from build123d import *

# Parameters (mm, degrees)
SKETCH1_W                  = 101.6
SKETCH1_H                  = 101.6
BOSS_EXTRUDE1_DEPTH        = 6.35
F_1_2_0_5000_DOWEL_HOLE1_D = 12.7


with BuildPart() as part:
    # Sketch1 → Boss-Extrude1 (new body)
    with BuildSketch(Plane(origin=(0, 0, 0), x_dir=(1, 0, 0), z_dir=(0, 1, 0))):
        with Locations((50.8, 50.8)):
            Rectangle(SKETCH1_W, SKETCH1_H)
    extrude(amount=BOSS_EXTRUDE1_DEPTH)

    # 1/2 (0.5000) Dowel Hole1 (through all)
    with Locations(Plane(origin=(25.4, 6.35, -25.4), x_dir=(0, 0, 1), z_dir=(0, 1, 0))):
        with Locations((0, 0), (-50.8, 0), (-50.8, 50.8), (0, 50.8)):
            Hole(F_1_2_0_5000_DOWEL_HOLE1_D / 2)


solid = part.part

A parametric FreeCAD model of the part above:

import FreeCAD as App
import Part
import Sketcher
Q = App.Units.Quantity

doc = App.newDocument("Part")
params = doc.addObject("Spreadsheet::Sheet", "Params")
for row, (alias, value) in enumerate([
    ("sketch1_width", "4 in"),
    ("pad1_length", "0.25 in"),
    ("sketch2_diameter", "0.5 in"),
    ("hole_diameter", "0.5 in"),
], start=1):
    params.set(f"A{row}", alias)
    params.set(f"B{row}", "=" + value)
    params.setAlias(f"B{row}", alias)

body = doc.addObject("PartDesign::Body", "Body")

sketch1 = body.newObject("Sketcher::SketchObject", "Sketch")
sketch1.AttachmentSupport = (doc.getObject("XZ_Plane"), [""])
sketch1.MapMode = "FlatFace"
sketch1.addGeometry([
    Part.LineSegment(App.Vector(0, -102, 0), App.Vector(0, 0, 0)),
    Part.LineSegment(App.Vector(0, 0, 0), App.Vector(102, 0, 0)),
    Part.LineSegment(App.Vector(102, 0, 0), App.Vector(102, -102, 0)),
    Part.LineSegment(App.Vector(102, -102, 0), App.Vector(0, -102, 0)),
], False)
sketch1.addConstraint([
    Sketcher.Constraint("Coincident", 0, 2, 1, 1),
    Sketcher.Constraint("Coincident", 1, 2, 2, 1),
    Sketcher.Constraint("Coincident", 2, 2, 3, 1),
    Sketcher.Constraint("Coincident", 3, 2, 0, 1),
    Sketcher.Constraint("Vertical", 0),
    Sketcher.Constraint("Horizontal", 1),
    Sketcher.Constraint("Vertical", 2),
    Sketcher.Constraint("Horizontal", 3),
    Sketcher.Constraint("Coincident", 0, 2, -1, 1),
    Sketcher.Constraint("Equal", 3, 0),
    Sketcher.Constraint("DistanceX", 1, 1, 1, 2, Q("4 in")),
])
sketch1.setExpression("Constraints[10]", "Params.sketch1_width")
pad1 = body.newObject("PartDesign::Pad", "Pad")
pad1.Profile = sketch1
pad1.setExpression("Length", "Params.pad1_length")
pad1.Reversed = True

sketch2 = body.newObject("Sketcher::SketchObject", "Sketch001")
sketch2.AttachmentSupport = (doc.getObject("XZ_Plane"), [""])
sketch2.MapMode = "FlatFace"
sketch2.AttachmentOffset = App.Placement(App.Vector(0, 0, -0.25 * 25.4), App.Rotation())
sketch2.addGeometry([
    Part.Circle(App.Vector(25, -25, 0), App.Vector(0, 0, 1), 6),
    Part.Circle(App.Vector(25, -76, 0), App.Vector(0, 0, 1), 6),
    Part.Circle(App.Vector(76, -76, 0), App.Vector(0, 0, 1), 6),
    Part.Circle(App.Vector(76, -25, 0), App.Vector(0, 0, 1), 6),
], False)
sketch2.addConstraint([
    Sketcher.Constraint("Equal", 0, 1),
    Sketcher.Constraint("Equal", 1, 2),
    Sketcher.Constraint("Equal", 2, 3),
    Sketcher.Constraint("Horizontal", 1, 3, 2, 3),
    Sketcher.Constraint("Horizontal", 0, 3, 3, 3),
    Sketcher.Constraint("Vertical", 0, 3, 1, 3),
    Sketcher.Constraint("Vertical", 2, 3, 3, 3),
    Sketcher.Constraint("Diameter", 0, Q("0.5 in")),
    Sketcher.Constraint("DistanceX", -1, 1, 0, 3, Q("1 in")),
    Sketcher.Constraint("DistanceY", 0, 3, -1, 1, Q("1 in")),
    Sketcher.Constraint("DistanceY", 1, 3, -1, 1, Q("3 in")),
    Sketcher.Constraint("DistanceX", -1, 1, 2, 3, Q("3 in")),
])
sketch2.setExpression("Constraints[7]", "Params.sketch2_diameter")
doc.recompute()
hole = body.newObject("PartDesign::Hole", "Hole")
hole.Profile = sketch2
hole.ThreadType = "None"
hole.setExpression("Diameter", "Params.hole_diameter")
hole.DepthType = "ThroughAll"
hole.Reversed = True

doc.recompute()
